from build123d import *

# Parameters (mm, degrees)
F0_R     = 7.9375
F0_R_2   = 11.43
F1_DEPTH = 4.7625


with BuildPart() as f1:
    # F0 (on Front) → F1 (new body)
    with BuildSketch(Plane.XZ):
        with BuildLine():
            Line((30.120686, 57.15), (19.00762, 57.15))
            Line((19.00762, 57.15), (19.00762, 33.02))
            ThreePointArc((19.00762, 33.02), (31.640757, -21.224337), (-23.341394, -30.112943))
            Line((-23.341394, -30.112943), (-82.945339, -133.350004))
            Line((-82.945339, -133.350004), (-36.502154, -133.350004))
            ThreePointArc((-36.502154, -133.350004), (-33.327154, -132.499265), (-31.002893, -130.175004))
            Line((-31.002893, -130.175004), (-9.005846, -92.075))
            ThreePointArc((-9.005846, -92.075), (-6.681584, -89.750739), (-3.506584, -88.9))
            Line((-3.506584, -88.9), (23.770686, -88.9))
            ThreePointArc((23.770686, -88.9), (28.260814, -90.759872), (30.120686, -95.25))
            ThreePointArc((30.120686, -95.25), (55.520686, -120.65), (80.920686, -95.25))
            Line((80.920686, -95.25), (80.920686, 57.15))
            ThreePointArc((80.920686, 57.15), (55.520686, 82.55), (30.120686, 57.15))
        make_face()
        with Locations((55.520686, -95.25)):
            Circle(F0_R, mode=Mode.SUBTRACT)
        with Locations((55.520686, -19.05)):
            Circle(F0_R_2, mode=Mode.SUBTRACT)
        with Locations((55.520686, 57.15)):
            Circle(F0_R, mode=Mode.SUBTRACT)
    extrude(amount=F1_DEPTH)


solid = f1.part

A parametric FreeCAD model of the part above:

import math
import FreeCAD as App
import Part
import Sketcher
from FreeCAD import Vector
Q = App.Units.Quantity

doc = App.newDocument("Part")
body = doc.addObject("PartDesign::Body", "Body")

# Sketch on XZ plane
sketch1 = doc.addObject("Sketcher::SketchObject", "Sketch")
body.addObject(sketch1)
sketch1.AttachmentSupport = (doc.XZ_Plane, [""])
sketch1.MapMode = "FlatFace"
sketch1.addGeometry([
    Part.LineSegment(Vector(30, 57, 0), Vector(19, 57, 0)),  # 0
    Part.LineSegment(Vector(19, 57, 0), Vector(19, 33, 0)),  # 1
    Part.ArcOfCircle(Part.Circle(Vector(0, 0, 0), Vector(0, 0, 1), 38), math.radians(-128), math.radians(60)),  # 2
    Part.LineSegment(Vector(-23, -30, 0), Vector(-83, -133, 0)),  # 3
    Part.LineSegment(Vector(-83, -133, 0), Vector(-37, -133, 0)),  # 4
    Part.ArcOfCircle(Part.Circle(Vector(-37, -127, 0), Vector(0, 0, 1), 6), math.radians(-90), math.radians(-30)),  # 5
    Part.LineSegment(Vector(-31, -130, 0), Vector(-9, -92, 0)),  # 6
    Part.ArcOfCircle(Part.Circle(Vector(-4, -95, 0), Vector(0, 0, 1), 6), math.radians(90), math.radians(150)),  # 7
    Part.LineSegment(Vector(-4, -89, 0), Vector(24, -89, 0)),  # 8
    Part.ArcOfCircle(Part.Circle(Vector(24, -95, 0), Vector(0, 0, 1), 6), math.radians(0), math.radians(90)),  # 9
    Part.ArcOfCircle(Part.Circle(Vector(56, -95, 0), Vector(0, 0, 1), 25), math.radians(180), math.radians(360)),  # 10
    Part.LineSegment(Vector(81, -95, 0), Vector(81, 57, 0)),  # 11
    Part.ArcOfCircle(Part.Circle(Vector(56, 57, 0), Vector(0, 0, 1), 25), math.radians(0), math.radians(180)),  # 12
    Part.Circle(Vector(56, -95, 0), Vector(0, 0, 1), 8),  # 13
    Part.Circle(Vector(56, -19, 0), Vector(0, 0, 1), 11),  # 14
    Part.Circle(Vector(56, 57, 0), Vector(0, 0, 1), 8),  # 15
], False)
sketch1.addConstraint([
    Sketcher.Constraint("Coincident", 0, 2, 1, 1),
    Sketcher.Constraint("Coincident", 1, 2, 2, 2),
    Sketcher.Constraint("Coincident", 2, 1, 3, 1),
    Sketcher.Constraint("Coincident", 3, 2, 4, 1),
    Sketcher.Constraint("Tangent", 4, 2, 5, 1),
    Sketcher.Constraint("Tangent", 5, 2, 6, 1),
    Sketcher.Constraint("Tangent", 6, 2, 7, 2),
    Sketcher.Constraint("Tangent", 7, 1, 8, 1),
    Sketcher.Constraint("Tangent", 8, 2, 9, 2),
    Sketcher.Constraint("Tangent", 9, 1, 10, 1),
    Sketcher.Constraint("Tangent", 10, 2, 11, 1),
    Sketcher.Constraint("Tangent", 11, 2, 12, 1),
    Sketcher.Constraint("Coincident", 12, 2, 0, 1),
    Sketcher.Constraint("Horizontal", 0),
    Sketcher.Constraint("Vertical", 1),
    Sketcher.Constraint("Horizontal", 4),
    Sketcher.Constraint("Horizontal", 8),
    Sketcher.Constraint("Vertical", 11),
    Sketcher.Constraint("Coincident", 2, 3, -1, 1),
    Sketcher.Constraint("Coincident", 13, 3, 10, 3),
    Sketcher.Constraint("Coincident", 15, 3, 12, 3),
    Sketcher.Constraint("Equal", 5, 9),
    Sketcher.Constraint("Equal", 10, 12),
    Sketcher.Constraint("Equal", 13, 15),
    Sketcher.Constraint("Parallel", 3, 6),
    Sketcher.Constraint("Horizontal", 9, 3, 10, 3),
    Sketcher.Constraint("Horizontal", 15, 3, 0, 2),
    Sketcher.Constraint("Vertical", 13, 3, 14, 3),
    Sketcher.Constraint("Radius", 10, Q("1 in")),
    Sketcher.Constraint("Diameter", 14, Q("0.9 in")),
    Sketcher.Constraint("Radius", 2, Q("1.5 in")),
    Sketcher.Constraint("DistanceY", 11, 1, 11, 2, Q("6 in")),
    Sketcher.Constraint("Radius", 5, Q("0.25 in")),
    Sketcher.Constraint("Radius", 7, Q("0.2500002 in")),
    Sketcher.Constraint("Diameter", 13, Q("0.625 in")),
    Sketcher.Constraint("DistanceY", 5, 3, -1, 1, Q("5.0000001 in")),
    Sketcher.Constraint("Angle", 3, Q("-120 deg")),
    Sketcher.Constraint("DistanceY", 10, 3, 14, 3, Q("3 in")),
    Sketcher.Constraint("DistanceY", 1, 2, 1, 1, Q("0.95 in")),
    Sketcher.Constraint("DistanceY", -1, 1, 1, 2, Q("1.3 in")),
    Sketcher.Constraint("DistanceX", 8, 1, 8, 2, 27.27727),
    Sketcher.Constraint("Distance", 3, 119.20789),
    Sketcher.Constraint("DistanceX", 0, 2, 0, 1, 11.113066),
])
pad1 = doc.addObject("PartDesign::Pad", "Pad")
body.addObject(pad1)
pad1.Profile = sketch1
pad1.Length = Q("0.1875 in")

doc.recompute()
